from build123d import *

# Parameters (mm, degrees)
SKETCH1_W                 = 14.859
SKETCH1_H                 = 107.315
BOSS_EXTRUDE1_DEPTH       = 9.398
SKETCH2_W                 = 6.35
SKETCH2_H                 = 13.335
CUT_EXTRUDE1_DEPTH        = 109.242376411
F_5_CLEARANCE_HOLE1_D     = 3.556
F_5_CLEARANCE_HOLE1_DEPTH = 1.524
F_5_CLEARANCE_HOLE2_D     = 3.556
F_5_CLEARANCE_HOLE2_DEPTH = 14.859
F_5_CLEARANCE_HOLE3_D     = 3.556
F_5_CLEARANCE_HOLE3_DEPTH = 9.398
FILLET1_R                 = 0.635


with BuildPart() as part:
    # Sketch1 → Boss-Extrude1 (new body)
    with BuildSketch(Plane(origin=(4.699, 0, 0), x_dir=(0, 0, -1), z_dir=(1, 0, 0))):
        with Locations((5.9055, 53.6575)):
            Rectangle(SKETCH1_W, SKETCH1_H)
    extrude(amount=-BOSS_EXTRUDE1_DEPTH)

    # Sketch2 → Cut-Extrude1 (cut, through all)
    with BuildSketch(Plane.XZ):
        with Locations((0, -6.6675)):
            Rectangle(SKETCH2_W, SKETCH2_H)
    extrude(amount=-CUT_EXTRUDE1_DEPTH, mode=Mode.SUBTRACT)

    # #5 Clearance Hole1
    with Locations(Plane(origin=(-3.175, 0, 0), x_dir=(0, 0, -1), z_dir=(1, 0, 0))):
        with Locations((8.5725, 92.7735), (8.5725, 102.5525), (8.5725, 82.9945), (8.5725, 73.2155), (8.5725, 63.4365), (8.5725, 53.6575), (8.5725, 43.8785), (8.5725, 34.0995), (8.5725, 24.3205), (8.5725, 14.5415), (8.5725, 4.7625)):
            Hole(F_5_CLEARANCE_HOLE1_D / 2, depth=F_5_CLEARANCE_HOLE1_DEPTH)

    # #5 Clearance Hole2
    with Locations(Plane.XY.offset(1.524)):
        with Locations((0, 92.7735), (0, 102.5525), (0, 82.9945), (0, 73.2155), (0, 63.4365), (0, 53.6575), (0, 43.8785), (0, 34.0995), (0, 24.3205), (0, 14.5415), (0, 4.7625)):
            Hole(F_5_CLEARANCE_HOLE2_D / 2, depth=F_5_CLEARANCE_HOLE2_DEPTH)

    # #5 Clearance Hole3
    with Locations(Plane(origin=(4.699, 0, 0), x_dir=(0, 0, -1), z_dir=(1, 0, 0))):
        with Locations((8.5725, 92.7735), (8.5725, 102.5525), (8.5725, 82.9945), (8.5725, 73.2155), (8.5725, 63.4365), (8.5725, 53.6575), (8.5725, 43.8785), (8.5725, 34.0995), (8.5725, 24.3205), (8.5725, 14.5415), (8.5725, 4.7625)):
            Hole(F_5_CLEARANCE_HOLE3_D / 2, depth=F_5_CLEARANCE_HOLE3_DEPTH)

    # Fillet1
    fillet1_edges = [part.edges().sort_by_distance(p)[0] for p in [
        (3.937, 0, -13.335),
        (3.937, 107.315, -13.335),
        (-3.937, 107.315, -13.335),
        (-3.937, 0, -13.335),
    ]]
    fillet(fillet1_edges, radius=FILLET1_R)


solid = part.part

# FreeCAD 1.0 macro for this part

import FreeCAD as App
import Part
import Sketcher
from FreeCAD import Vector
Q = App.Units.Quantity


def edges_at(feature, points):
    """Names of the edges that pass closest to the given points."""
    edges = feature.Shape.Edges
    near = lambda p: min(range(len(edges)), key=lambda i: edges[i].distToShape(Part.Vertex(*p))[0])
    return sorted({f"Edge{near(p) + 1}" for p in points})

doc = App.newDocument("Part")
params = doc.addObject("Spreadsheet::Sheet", "Params")
for row, (alias, value) in enumerate([
    ("sketch1_width", "4.225 in"),
    ("sketch1_height", "0.585 in"),
    ("pad1_length", "0.37 in"),
    ("sketch2_width", "0.25 in"),
    ("sketch2_height", "0.525 in"),
    ("sketch3_diameter", "0.14 in"),
    ("hole_diameter", "0.14 in"),
    ("hole_depth", "0.06 in"),
    ("sketch4_diameter", "0.14 in"),
    ("hole2_diameter", "0.14 in"),
    ("hole2_depth", "0.585 in"),
    ("sketch5_diameter", "0.14 in"),
    ("hole3_diameter", "0.14 in"),
    ("hole3_depth", "0.37 in"),
    ("fillet_radius", "0.025 in"),
], start=1):
    params.set(f"A{row}", alias)
    params.set(f"B{row}", "=" + value)
    params.setAlias(f"B{row}", alias)

body = doc.addObject("PartDesign::Body", "Body")

sketch1 = body.newObject("Sketcher::SketchObject", "Sketch")
sketch1.AttachmentSupport = (doc.getObject("YZ_Plane"), [""])
sketch1.MapMode = "FlatFace"
sketch1.AttachmentOffset = App.Placement(Vector(0, 0, 0.185 * 25.4), App.Rotation())
sketch1.addGeometry([
    Part.LineSegment(Vector(107, 2, 0), Vector(0, 2, 0)),
    Part.LineSegment(Vector(0, 2, 0), Vector(0, -13, 0)),
    Part.LineSegment(Vector(0, -13, 0), Vector(107, -13, 0)),
    Part.LineSegment(Vector(107, -13, 0), Vector(107, 2, 0)),
], False)
sketch1.addConstraint([
    Sketcher.Constraint("Coincident", 0, 2, 1, 1),
    Sketcher.Constraint("Coincident", 1, 2, 2, 1),
    Sketcher.Constraint("Coincident", 2, 2, 3, 1),
    Sketcher.Constraint("Coincident", 3, 2, 0, 1),
    Sketcher.Constraint("Horizontal", 0),
    Sketcher.Constraint("Vertical", 1),
    Sketcher.Constraint("Horizontal", 2),
    Sketcher.Constraint("Vertical", 3),
    Sketcher.Constraint("PointOnObject", 0, 2, -2),
    Sketcher.Constraint("DistanceX", 0, 2, 0, 1, Q("4.225 in")),
    Sketcher.Constraint("DistanceY", 1, 2, 1, 1, Q("0.585 in")),
    Sketcher.Constraint("DistanceY", -1, 1, 0, 2, Q("0.06 in")),
])
sketch1.setExpression("Constraints[9]", "Params.sketch1_width")
sketch1.setExpression("Constraints[10]", "Params.sketch1_height")
pad1 = body.newObject("PartDesign::Pad", "Pad")
pad1.Profile = sketch1
pad1.setExpression("Length", "Params.pad1_length")
pad1.Reversed = True

sketch2 = body.newObject("Sketcher::SketchObject", "Sketch001")
sketch2.AttachmentSupport = (doc.getObject("XZ_Plane"), [""])
sketch2.MapMode = "FlatFace"
sketch2.addGeometry([
    Part.LineSegment(Vector(-3, 0, 0), Vector(-3, -13, 0)),
    Part.LineSegment(Vector(-3, -13, 0), Vector(3, -13, 0)),
    Part.LineSegment(Vector(3, -13, 0), Vector(3, 0, 0)),
    Part.LineSegment(Vector(3, 0, 0), Vector(-3, 0, 0)),
], False)
sketch2.addConstraint([
    Sketcher.Constraint("Coincident", 0, 2, 1, 1),
    Sketcher.Constraint("Coincident", 1, 2, 2, 1),
    Sketcher.Constraint("Coincident", 2, 2, 3, 1),
    Sketcher.Constraint("Coincident", 3, 2, 0, 1),
    Sketcher.Constraint("Vertical", 0),
    Sketcher.Constraint("Horizontal", 1),
    Sketcher.Constraint("Vertical", 2),
    Sketcher.Constraint("Horizontal", 3),
    Sketcher.Constraint("Symmetric", 2, 2, 3, 2, -1, 1),
    Sketcher.Constraint("DistanceX", 1, 1, 1, 2, Q("0.25 in")),
    Sketcher.Constraint("DistanceY", 0, 2, 0, 1, Q("0.525 in")),
])
sketch2.setExpression("Constraints[9]", "Params.sketch2_width")
sketch2.setExpression("Constraints[10]", "Params.sketch2_height")
pocket1 = body.newObject("PartDesign::Pocket", "Pocket")
pocket1.Profile = sketch2
pocket1.Type = "ThroughAll"

sketch3 = body.newObject("Sketcher::SketchObject", "Sketch002")
sketch3.AttachmentSupport = (doc.getObject("YZ_Plane"), [""])
sketch3.MapMode = "FlatFace"
sketch3.AttachmentOffset = App.Placement(Vector(0, 0, -0.125 * 25.4), App.Rotation())
sketch3.addGeometry([
    Part.Circle(Vector(92.8, -8.6, 0), Vector(0, 0, 1), 1.8),
    Part.Circle(Vector(102.6, -8.6, 0), Vector(0, 0, 1), 1.8),
    Part.Circle(Vector(83, -8.6, 0), Vector(0, 0, 1), 1.8),
    Part.Circle(Vector(73.2, -8.6, 0), Vector(0, 0, 1), 1.8),
    Part.Circle(Vector(63.4, -8.6, 0), Vector(0, 0, 1), 1.8),
    Part.Circle(Vector(53.7, -8.6, 0), Vector(0, 0, 1), 1.8),
    Part.Circle(Vector(43.9, -8.6, 0), Vector(0, 0, 1), 1.8),
    Part.Circle(Vector(34.1, -8.6, 0), Vector(0, 0, 1), 1.8),
    Part.Circle(Vector(24.3, -8.6, 0), Vector(0, 0, 1), 1.8),
    Part.Circle(Vector(14.5, -8.6, 0), Vector(0, 0, 1), 1.8),
    Part.Circle(Vector(4.8, -8.6, 0), Vector(0, 0, 1), 1.8),
], False)
sketch3.addConstraint([
    Sketcher.Constraint("Equal", 0, 1),
    Sketcher.Constraint("Equal", 1, 2),
    Sketcher.Constraint("Equal", 2, 3),
    Sketcher.Constraint("Equal", 3, 4),
    Sketcher.Constraint("Equal", 4, 5),
    Sketcher.Constraint("Equal", 5, 6),
    Sketcher.Constraint("Equal", 6, 7),
    Sketcher.Constraint("Equal", 7, 8),
    Sketcher.Constraint("Equal", 8, 9),
    Sketcher.Constraint("Equal", 9, 10),
    Sketcher.Constraint("Horizontal", 0, 3, 1, 3),
    Sketcher.Constraint("Horizontal", 1, 3, 2, 3),
    Sketcher.Constraint("Horizontal", 2, 3, 3, 3),
    Sketcher.Constraint("Horizontal", 3, 3, 4, 3),
    Sketcher.Constraint("Horizontal", 4, 3, 5, 3),
    Sketcher.Constraint("Horizontal", 5, 3, 6, 3),
    Sketcher.Constraint("Horizontal", 6, 3, 7, 3),
    Sketcher.Constraint("Horizontal", 7, 3, 8, 3),
    Sketcher.Constraint("Horizontal", 8, 3, 9, 3),
    Sketcher.Constraint("Horizontal", 9, 3, 10, 3),
    Sketcher.Constraint("Diameter", 0, Q("0.14 in")),
    Sketcher.Constraint("DistanceX", 2, 3, 1, 3, Q("0.77 in")),
    Sketcher.Constraint("DistanceX", 3, 3, 0, 3, Q("0.77 in")),
    Sketcher.Constraint("DistanceX", 4, 3, 2, 3, Q("0.77 in")),
    Sketcher.Constraint("DistanceX", 5, 3, 3, 3, Q("0.77 in")),
    Sketcher.Constraint("DistanceX", 6, 3, 4, 3, Q("0.77 in")),
    Sketcher.Constraint("DistanceX", 7, 3, 5, 3, Q("0.77 in")),
    Sketcher.Constraint("DistanceX", 8, 3, 6, 3, Q("0.77 in")),
    Sketcher.Constraint("DistanceX", 9, 3, 7, 3, Q("0.77 in")),
    Sketcher.Constraint("DistanceX", 10, 3, 8, 3, Q("0.77 in")),
    Sketcher.Constraint("DistanceX", -1, 1, 10, 3, Q("0.1875 in")),
    Sketcher.Constraint("DistanceX", 0, 3, 1, 3, Q("0.385 in")),
    Sketcher.Constraint("DistanceY", 0, 3, -1, 1, Q("0.3375 in")),
])
sketch3.setExpression("Constraints[20]", "Params.sketch3_diameter")
doc.recompute()
hole = body.newObject("PartDesign::Hole", "Hole")
hole.Profile = sketch3
hole.ThreadType = "None"
hole.setExpression("Diameter", "Params.hole_diameter")
hole.DepthType = "Dimension"
hole.setExpression("Depth", "Params.hole_depth")
hole.DrillPoint = "Flat"

sketch4 = body.newObject("Sketcher::SketchObject", "Sketch003")
sketch4.AttachmentSupport = (doc.getObject("XY_Plane"), [""])
sketch4.MapMode = "FlatFace"
sketch4.AttachmentOffset = App.Placement(Vector(0, 0, 0.06 * 25.4), App.Rotation())
sketch4.addGeometry([
    Part.Circle(Vector(0, 92.8, 0), Vector(0, 0, 1), 1.8),
    Part.Circle(Vector(0, 102.6, 0), Vector(0, 0, 1), 1.8),
    Part.Circle(Vector(0, 83, 0), Vector(0, 0, 1), 1.8),
    Part.Circle(Vector(0, 73.2, 0), Vector(0, 0, 1), 1.8),
    Part.Circle(Vector(0, 63.4, 0), Vector(0, 0, 1), 1.8),
    Part.Circle(Vector(0, 53.7, 0), Vector(0, 0, 1), 1.8),
    Part.Circle(Vector(0, 43.9, 0), Vector(0, 0, 1), 1.8),
    Part.Circle(Vector(0, 34.1, 0), Vector(0, 0, 1), 1.8),
    Part.Circle(Vector(0, 24.3, 0), Vector(0, 0, 1), 1.8),
    Part.Circle(Vector(0, 14.5, 0), Vector(0, 0, 1), 1.8),
    Part.Circle(Vector(0, 4.8, 0), Vector(0, 0, 1), 1.8),
], False)
sketch4.addConstraint([
    Sketcher.Constraint("Equal", 0, 1),
    Sketcher.Constraint("Equal", 1, 2),
    Sketcher.Constraint("Equal", 2, 3),
    Sketcher.Constraint("Equal", 3, 4),
    Sketcher.Constraint("Equal", 4, 5),
    Sketcher.Constraint("Equal", 5, 6),
    Sketcher.Constraint("Equal", 6, 7),
    Sketcher.Constraint("Equal", 7, 8),
    Sketcher.Constraint("Equal", 8, 9),
    Sketcher.Constraint("Equal", 9, 10),
    Sketcher.Constraint("PointOnObject", 0, 3, -2),
    Sketcher.Constraint("PointOnObject", 1, 3, -2),
    Sketcher.Constraint("PointOnObject", 2, 3, -2),
    Sketcher.Constraint("PointOnObject", 3, 3, -2),
    Sketcher.Constraint("PointOnObject", 4, 3, -2),
    Sketcher.Constraint("PointOnObject", 5, 3, -2),
    Sketcher.Constraint("PointOnObject", 6, 3, -2),
    Sketcher.Constraint("PointOnObject", 7, 3, -2),
    Sketcher.Constraint("PointOnObject", 8, 3, -2),
    Sketcher.Constraint("PointOnObject", 9, 3, -2),
    Sketcher.Constraint("PointOnObject", 10, 3, -2),
    Sketcher.Constraint("Diameter", 0, Q("0.14 in")),
    Sketcher.Constraint("DistanceY", 2, 3, 1, 3, Q("0.77 in")),
    Sketcher.Constraint("DistanceY", 3, 3, 0, 3, Q("0.77 in")),
    Sketcher.Constraint("DistanceY", 4, 3, 2, 3, Q("0.77 in")),
    Sketcher.Constraint("DistanceY", 5, 3, 3, 3, Q("0.77 in")),
    Sketcher.Constraint("DistanceY", 6, 3, 4, 3, Q("0.77 in")),
    Sketcher.Constraint("DistanceY", 7, 3, 5, 3, Q("0.77 in")),
    Sketcher.Constraint("DistanceY", 8, 3, 6, 3, Q("0.77 in")),
    Sketcher.Constraint("DistanceY", 9, 3, 7, 3, Q("0.77 in")),
    Sketcher.Constraint("DistanceY", 10, 3, 8, 3, Q("0.77 in")),
    Sketcher.Constraint("DistanceY", -1, 1, 10, 3, Q("0.1875 in")),
    Sketcher.Constraint("DistanceY", 0, 3, 1, 3, Q("0.385 in")),
])
sketch4.setExpression("Constraints[21]", "Params.sketch4_diameter")
doc.recompute()
hole2 = body.newObject("PartDesign::Hole", "Hole001")
hole2.Profile = sketch4
hole2.ThreadType = "None"
hole2.setExpression("Diameter", "Params.hole2_diameter")
hole2.DepthType = "Dimension"
hole2.setExpression("Depth", "Params.hole2_depth")
hole2.DrillPoint = "Flat"

sketch5 = body.newObject("Sketcher::SketchObject", "Sketch004")
sketch5.AttachmentSupport = (doc.getObject("YZ_Plane"), [""])
sketch5.MapMode = "FlatFace"
sketch5.AttachmentOffset = App.Placement(Vector(0, 0, 0.185 * 25.4), App.Rotation())
sketch5.addGeometry([
    Part.Circle(Vector(92.8, -8.6, 0), Vector(0, 0, 1), 1.8),
    Part.Circle(Vector(102.6, -8.6, 0), Vector(0, 0, 1), 1.8),
    Part.Circle(Vector(83, -8.6, 0), Vector(0, 0, 1), 1.8),
    Part.Circle(Vector(73.2, -8.6, 0), Vector(0, 0, 1), 1.8),
    Part.Circle(Vector(63.4, -8.6, 0), Vector(0, 0, 1), 1.8),
    Part.Circle(Vector(53.7, -8.6, 0), Vector(0, 0, 1), 1.8),
    Part.Circle(Vector(43.9, -8.6, 0), Vector(0, 0, 1), 1.8),
    Part.Circle(Vector(34.1, -8.6, 0), Vector(0, 0, 1), 1.8),
    Part.Circle(Vector(24.3, -8.6, 0), Vector(0, 0, 1), 1.8),
    Part.Circle(Vector(14.5, -8.6, 0), Vector(0, 0, 1), 1.8),
    Part.Circle(Vector(4.8, -8.6, 0), Vector(0, 0, 1), 1.8),
], False)
sketch5.addConstraint([
    Sketcher.Constraint("Equal", 0, 1),
    Sketcher.Constraint("Equal", 1, 2),
    Sketcher.Constraint("Equal", 2, 3),
    Sketcher.Constraint("Equal", 3, 4),
    Sketcher.Constraint("Equal", 4, 5),
    Sketcher.Constraint("Equal", 5, 6),
    Sketcher.Constraint("Equal", 6, 7),
    Sketcher.Constraint("Equal", 7, 8),
    Sketcher.Constraint("Equal", 8, 9),
    Sketcher.Constraint("Equal", 9, 10),
    Sketcher.Constraint("Horizontal", 0, 3, 1, 3),
    Sketcher.Constraint("Horizontal", 1, 3, 2, 3),
    Sketcher.Constraint("Horizontal", 2, 3, 3, 3),
    Sketcher.Constraint("Horizontal", 3, 3, 4, 3),
    Sketcher.Constraint("Horizontal", 4, 3, 5, 3),
    Sketcher.Constraint("Horizontal", 5, 3, 6, 3),
    Sketcher.Constraint("Horizontal", 6, 3, 7, 3),
    Sketcher.Constraint("Horizontal", 7, 3, 8, 3),
    Sketcher.Constraint("Horizontal", 8, 3, 9, 3),
    Sketcher.Constraint("Horizontal", 9, 3, 10, 3),
    Sketcher.Constraint("Diameter", 0, Q("0.14 in")),
    Sketcher.Constraint("DistanceX", 2, 3, 1, 3, Q("0.77 in")),
    Sketcher.Constraint("DistanceX", 3, 3, 0, 3, Q("0.77 in")),
    Sketcher.Constraint("DistanceX", 4, 3, 2, 3, Q("0.77 in")),
    Sketcher.Constraint("DistanceX", 5, 3, 3, 3, Q("0.77 in")),
    Sketcher.Constraint("DistanceX", 6, 3, 4, 3, Q("0.77 in")),
    Sketcher.Constraint("DistanceX", 7, 3, 5, 3, Q("0.77 in")),
    Sketcher.Constraint("DistanceX", 8, 3, 6, 3, Q("0.77 in")),
    Sketcher.Constraint("DistanceX", 9, 3, 7, 3, Q("0.77 in")),
    Sketcher.Constraint("DistanceX", 10, 3, 8, 3, Q("0.77 in")),
    Sketcher.Constraint("DistanceX", -1, 1, 10, 3, Q("0.1875 in")),
    Sketcher.Constraint("DistanceX", 0, 3, 1, 3, Q("0.385 in")),
    Sketcher.Constraint("DistanceY", 0, 3, -1, 1, Q("0.3375 in")),
])
sketch5.setExpression("Constraints[20]", "Params.sketch5_diameter")
doc.recompute()
hole3 = body.newObject("PartDesign::Hole", "Hole002")
hole3.Profile = sketch5
hole3.ThreadType = "None"
hole3.setExpression("Diameter", "Params.hole3_diameter")
hole3.DepthType = "Dimension"
hole3.setExpression("Depth", "Params.hole3_depth")
hole3.DrillPoint = "Flat"
doc.recompute()

fillet = body.newObject("PartDesign::Fillet", "Fillet")
fillet.Base = (hole3, edges_at(hole3, [
    (3.937, 0, -13.335),
    (3.937, 107.315, -13.335),
    (-3.937, 107.315, -13.335),
    (-3.937, 0, -13.335),
]))
fillet.setExpression("Radius", "Params.fillet_radius")

doc.recompute()
